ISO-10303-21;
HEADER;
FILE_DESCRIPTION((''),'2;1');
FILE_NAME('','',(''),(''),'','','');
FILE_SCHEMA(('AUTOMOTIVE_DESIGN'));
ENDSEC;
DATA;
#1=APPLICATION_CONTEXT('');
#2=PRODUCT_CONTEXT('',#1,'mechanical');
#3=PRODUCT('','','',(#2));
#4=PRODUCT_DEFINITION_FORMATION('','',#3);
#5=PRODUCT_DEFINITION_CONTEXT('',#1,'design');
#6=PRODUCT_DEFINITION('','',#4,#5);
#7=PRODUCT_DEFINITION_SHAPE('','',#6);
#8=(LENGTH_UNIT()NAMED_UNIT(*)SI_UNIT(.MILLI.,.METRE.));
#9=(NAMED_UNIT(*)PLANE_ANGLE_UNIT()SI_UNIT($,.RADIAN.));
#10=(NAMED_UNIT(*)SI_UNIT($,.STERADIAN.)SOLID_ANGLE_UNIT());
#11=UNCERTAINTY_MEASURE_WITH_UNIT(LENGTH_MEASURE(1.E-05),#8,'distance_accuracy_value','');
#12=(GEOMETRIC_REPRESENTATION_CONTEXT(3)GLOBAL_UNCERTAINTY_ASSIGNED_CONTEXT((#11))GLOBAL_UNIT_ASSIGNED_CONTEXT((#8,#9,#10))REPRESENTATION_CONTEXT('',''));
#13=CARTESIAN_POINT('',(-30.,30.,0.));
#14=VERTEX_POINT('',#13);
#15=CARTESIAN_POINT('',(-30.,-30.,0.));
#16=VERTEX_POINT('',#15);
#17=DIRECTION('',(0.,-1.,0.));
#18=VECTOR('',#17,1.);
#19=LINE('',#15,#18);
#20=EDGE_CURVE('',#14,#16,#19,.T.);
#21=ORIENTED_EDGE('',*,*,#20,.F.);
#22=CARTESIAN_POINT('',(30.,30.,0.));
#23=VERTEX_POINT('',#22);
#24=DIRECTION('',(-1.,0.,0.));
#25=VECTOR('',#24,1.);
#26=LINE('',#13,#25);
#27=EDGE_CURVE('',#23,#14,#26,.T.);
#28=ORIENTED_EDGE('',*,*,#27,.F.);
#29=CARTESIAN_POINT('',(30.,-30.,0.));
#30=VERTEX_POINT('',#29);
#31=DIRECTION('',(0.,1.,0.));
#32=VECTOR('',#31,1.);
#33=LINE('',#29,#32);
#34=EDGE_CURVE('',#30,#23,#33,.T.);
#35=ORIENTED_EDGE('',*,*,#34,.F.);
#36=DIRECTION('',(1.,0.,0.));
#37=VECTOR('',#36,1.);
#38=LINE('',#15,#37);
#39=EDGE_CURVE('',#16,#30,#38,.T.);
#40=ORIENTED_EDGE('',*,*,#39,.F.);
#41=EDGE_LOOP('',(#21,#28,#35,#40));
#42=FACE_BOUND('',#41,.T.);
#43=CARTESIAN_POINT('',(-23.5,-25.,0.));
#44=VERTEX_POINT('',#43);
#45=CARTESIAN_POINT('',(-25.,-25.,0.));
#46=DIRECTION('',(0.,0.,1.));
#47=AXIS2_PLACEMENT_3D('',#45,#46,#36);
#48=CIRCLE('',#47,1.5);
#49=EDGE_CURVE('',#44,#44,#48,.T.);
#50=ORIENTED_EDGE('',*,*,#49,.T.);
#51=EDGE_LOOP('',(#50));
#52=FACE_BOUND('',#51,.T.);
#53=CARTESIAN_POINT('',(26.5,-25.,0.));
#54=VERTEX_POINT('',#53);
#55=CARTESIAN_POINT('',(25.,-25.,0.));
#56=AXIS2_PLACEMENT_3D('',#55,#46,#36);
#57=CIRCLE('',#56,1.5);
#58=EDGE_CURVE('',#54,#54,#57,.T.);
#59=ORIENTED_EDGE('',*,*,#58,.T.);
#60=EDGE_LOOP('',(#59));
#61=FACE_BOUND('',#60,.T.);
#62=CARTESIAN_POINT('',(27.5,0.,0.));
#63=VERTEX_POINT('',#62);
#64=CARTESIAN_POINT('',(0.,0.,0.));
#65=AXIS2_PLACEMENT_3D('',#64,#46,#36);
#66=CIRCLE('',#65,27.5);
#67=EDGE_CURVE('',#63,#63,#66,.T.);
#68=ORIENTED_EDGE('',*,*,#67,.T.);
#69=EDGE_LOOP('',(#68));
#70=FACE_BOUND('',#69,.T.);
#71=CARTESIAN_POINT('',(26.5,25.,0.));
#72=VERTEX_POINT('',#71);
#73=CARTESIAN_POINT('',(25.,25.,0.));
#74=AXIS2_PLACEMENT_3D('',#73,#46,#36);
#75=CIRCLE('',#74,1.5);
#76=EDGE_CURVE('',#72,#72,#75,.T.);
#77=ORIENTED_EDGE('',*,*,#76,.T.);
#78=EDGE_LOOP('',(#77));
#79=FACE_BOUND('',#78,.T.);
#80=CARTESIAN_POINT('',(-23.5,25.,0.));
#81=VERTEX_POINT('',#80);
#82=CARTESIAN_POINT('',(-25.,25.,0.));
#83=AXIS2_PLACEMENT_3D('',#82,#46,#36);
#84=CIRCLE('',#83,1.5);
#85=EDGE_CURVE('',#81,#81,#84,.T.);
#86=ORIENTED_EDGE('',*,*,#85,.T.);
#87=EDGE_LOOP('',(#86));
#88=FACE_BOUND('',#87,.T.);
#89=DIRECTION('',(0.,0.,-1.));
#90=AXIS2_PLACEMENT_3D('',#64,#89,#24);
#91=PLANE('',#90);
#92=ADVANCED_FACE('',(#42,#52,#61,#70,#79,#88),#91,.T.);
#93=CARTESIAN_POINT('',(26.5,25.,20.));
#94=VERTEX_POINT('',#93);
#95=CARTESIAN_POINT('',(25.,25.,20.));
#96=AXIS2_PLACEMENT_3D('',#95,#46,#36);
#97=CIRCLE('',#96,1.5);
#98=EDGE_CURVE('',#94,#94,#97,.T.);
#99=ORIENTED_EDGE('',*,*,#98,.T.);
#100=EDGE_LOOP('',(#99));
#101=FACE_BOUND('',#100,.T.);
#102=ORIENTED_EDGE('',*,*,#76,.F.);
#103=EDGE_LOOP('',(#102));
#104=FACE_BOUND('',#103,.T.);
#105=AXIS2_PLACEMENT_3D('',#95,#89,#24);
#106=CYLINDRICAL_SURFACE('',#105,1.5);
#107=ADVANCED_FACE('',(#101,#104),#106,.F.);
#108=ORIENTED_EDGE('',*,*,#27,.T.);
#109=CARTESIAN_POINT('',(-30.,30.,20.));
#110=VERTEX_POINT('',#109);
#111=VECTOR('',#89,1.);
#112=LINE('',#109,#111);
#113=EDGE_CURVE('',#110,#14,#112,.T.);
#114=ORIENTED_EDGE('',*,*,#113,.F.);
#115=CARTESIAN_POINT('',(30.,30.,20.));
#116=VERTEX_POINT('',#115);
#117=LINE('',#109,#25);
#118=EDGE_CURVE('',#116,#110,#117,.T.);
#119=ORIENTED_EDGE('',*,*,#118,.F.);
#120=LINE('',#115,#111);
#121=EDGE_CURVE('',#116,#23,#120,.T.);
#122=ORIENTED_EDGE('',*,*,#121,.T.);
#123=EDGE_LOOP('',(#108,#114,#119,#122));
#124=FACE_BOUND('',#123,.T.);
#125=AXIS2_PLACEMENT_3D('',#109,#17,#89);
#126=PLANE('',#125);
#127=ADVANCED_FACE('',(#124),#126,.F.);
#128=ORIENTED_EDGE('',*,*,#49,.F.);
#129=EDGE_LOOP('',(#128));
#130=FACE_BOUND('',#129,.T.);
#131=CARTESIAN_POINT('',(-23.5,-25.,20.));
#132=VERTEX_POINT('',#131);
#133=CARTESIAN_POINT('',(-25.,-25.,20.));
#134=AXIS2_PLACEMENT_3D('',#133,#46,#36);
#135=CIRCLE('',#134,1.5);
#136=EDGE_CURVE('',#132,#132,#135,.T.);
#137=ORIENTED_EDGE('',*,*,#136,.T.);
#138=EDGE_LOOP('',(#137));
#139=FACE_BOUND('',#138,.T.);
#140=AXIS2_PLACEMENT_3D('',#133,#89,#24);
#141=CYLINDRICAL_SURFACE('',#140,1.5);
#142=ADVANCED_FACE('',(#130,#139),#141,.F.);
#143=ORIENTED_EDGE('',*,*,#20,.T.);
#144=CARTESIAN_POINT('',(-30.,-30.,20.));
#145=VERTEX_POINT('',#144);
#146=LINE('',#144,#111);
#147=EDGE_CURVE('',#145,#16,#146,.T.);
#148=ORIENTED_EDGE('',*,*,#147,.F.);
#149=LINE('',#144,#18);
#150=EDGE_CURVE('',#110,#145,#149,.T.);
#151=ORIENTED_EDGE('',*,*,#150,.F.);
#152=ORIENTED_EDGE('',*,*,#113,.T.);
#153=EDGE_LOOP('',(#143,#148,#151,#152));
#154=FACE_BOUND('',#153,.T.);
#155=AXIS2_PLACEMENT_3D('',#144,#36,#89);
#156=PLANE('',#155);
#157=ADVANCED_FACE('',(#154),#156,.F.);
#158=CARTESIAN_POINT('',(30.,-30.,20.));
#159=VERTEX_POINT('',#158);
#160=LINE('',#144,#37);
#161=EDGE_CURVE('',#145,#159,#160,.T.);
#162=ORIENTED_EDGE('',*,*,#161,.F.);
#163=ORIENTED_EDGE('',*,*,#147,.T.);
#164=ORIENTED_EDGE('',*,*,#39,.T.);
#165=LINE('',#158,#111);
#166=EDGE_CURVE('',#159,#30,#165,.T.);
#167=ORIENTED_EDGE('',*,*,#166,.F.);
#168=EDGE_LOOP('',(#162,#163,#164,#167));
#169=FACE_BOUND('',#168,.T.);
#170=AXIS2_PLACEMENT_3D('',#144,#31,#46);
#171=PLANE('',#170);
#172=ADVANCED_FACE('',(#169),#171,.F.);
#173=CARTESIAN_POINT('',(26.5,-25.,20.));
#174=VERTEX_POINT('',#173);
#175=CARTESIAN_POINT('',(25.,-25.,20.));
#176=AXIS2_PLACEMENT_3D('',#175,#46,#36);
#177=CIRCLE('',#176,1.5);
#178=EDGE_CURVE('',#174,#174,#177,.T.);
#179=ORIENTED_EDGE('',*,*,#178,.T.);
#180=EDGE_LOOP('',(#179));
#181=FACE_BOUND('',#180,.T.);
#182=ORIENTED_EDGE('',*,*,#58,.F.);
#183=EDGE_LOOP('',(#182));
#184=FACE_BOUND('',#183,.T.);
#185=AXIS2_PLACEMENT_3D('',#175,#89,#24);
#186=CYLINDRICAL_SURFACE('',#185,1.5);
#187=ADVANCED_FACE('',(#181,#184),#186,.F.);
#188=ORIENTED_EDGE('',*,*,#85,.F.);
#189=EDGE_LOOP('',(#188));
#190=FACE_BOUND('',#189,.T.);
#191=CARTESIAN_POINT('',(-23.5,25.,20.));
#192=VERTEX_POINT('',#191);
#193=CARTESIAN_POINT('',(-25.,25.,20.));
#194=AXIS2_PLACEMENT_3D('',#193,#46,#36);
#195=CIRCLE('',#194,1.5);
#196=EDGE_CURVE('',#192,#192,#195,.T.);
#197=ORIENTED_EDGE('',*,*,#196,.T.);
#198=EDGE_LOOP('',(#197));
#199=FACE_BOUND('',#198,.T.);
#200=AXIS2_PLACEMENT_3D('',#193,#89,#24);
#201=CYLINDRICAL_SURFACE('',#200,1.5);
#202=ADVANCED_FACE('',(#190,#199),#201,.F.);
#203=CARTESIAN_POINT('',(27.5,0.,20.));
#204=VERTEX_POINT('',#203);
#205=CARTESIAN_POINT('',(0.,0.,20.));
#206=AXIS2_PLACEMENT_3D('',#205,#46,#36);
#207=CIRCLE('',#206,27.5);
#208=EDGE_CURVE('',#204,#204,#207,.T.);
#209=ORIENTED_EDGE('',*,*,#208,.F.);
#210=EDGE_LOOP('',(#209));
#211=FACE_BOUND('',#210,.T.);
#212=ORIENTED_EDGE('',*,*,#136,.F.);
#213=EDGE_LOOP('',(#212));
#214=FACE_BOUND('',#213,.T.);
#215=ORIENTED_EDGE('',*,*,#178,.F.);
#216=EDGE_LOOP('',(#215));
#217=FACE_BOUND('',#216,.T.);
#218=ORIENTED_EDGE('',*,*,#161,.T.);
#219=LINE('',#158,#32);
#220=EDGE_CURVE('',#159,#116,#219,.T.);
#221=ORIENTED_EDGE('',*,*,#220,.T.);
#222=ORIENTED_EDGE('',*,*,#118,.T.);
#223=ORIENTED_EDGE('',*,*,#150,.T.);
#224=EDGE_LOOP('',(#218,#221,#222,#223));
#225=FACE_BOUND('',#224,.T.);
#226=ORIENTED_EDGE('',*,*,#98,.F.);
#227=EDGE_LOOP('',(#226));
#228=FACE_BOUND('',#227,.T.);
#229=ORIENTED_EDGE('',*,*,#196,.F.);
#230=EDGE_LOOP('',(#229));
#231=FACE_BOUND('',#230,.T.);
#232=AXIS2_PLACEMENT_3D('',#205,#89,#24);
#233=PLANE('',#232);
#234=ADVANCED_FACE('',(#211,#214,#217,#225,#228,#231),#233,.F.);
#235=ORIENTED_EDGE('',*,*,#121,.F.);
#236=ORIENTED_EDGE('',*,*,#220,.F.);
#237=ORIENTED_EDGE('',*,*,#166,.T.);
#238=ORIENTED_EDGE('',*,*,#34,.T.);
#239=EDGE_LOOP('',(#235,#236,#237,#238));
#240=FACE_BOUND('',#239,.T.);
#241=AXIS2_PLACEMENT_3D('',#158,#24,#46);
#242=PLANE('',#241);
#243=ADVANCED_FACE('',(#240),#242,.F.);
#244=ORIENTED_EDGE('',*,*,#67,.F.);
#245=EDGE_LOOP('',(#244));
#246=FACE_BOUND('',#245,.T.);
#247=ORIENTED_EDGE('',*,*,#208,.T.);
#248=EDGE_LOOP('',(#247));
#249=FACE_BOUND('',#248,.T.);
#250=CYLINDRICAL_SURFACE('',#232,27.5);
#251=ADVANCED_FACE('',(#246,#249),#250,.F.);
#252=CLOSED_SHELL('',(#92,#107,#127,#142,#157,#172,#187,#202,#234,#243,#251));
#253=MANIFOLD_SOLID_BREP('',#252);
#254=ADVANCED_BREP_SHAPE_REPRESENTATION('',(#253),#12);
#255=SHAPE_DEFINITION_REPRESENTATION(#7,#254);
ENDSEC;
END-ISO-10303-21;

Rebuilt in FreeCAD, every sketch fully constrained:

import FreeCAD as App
import Part
import Sketcher
from FreeCAD import Vector
Q = App.Units.Quantity


def add_polygon(sketch, points):
    """Adds a closed chain of lines whose ends are joined by coincident constraints."""
    first, n = sketch.GeometryCount, len(points)
    for a, b in zip(points, points[1:] + points[:1]):
        sketch.addGeometry(Part.LineSegment(App.Vector(*a, 0), App.Vector(*b, 0)), False)
    for i in range(n):
        sketch.addConstraint(Sketcher.Constraint("Coincident", first + i, 2, first + (i + 1) % n, 1))

doc = App.newDocument("Part")
body = doc.addObject("PartDesign::Body", "Body")

# Sketch on XY plane
sketch1 = doc.addObject("Sketcher::SketchObject", "Sketch")
body.addObject(sketch1)
sketch1.AttachmentSupport = (doc.XY_Plane, [""])
sketch1.MapMode = "FlatFace"
add_polygon(sketch1, [(-30, 30), (-30, -30), (30, -30), (30, 30)])  # lines 0-3
sketch1.addGeometry(Part.Circle(Vector(-25, -25, 0), Vector(0, 0, 1), 1.5), False)  # 4
sketch1.addGeometry(Part.Circle(Vector(25, -25, 0), Vector(0, 0, 1), 1.5), False)  # 5
sketch1.addGeometry(Part.Circle(Vector(-25, 25, 0), Vector(0, 0, 1), 1.5), False)  # 6
sketch1.addGeometry(Part.Circle(Vector(0, 0, 0), Vector(0, 0, 1), 27.5), False)  # 7
sketch1.addGeometry(Part.Circle(Vector(25, 25, 0), Vector(0, 0, 1), 1.5), False)  # 8
sketch1.addConstraint([
    Sketcher.Constraint("Vertical", 0),
    Sketcher.Constraint("Horizontal", 1),
    Sketcher.Constraint("Vertical", 2),
    Sketcher.Constraint("Horizontal", 3),
    Sketcher.Constraint("Coincident", 7, 3, -1, 1),
    Sketcher.Constraint("Equal", 4, 5),
    Sketcher.Constraint("Equal", 5, 6),
    Sketcher.Constraint("Equal", 6, 8),
    Sketcher.Constraint("Symmetric", 5, 3, 6, 3, -1, 1),
    Sketcher.Constraint("Symmetric", 4, 3, 8, 3, -1, 1),
    Sketcher.Constraint("Symmetric", 0, 2, 2, 2, -1, 1),
    Sketcher.Constraint("Symmetric", 4, 3, 5, 3, -2),
    Sketcher.Constraint("Equal", 3, 0),
    Sketcher.Constraint("Diameter", 4, Q("3 mm")),
    Sketcher.Constraint("Diameter", 7, Q("55 mm")),
    Sketcher.Constraint("DistanceX", 1, 1, 1, 2, Q("60 mm")),
    Sketcher.Constraint("DistanceX", 4, 3, -1, 1, Q("25 mm")),
    Sketcher.Constraint("DistanceY", 4, 3, -1, 1, Q("25 mm")),
])
pad1 = doc.addObject("PartDesign::Pad", "Pad")
body.addObject(pad1)
pad1.Profile = sketch1
pad1.Length = 20

doc.recompute()
